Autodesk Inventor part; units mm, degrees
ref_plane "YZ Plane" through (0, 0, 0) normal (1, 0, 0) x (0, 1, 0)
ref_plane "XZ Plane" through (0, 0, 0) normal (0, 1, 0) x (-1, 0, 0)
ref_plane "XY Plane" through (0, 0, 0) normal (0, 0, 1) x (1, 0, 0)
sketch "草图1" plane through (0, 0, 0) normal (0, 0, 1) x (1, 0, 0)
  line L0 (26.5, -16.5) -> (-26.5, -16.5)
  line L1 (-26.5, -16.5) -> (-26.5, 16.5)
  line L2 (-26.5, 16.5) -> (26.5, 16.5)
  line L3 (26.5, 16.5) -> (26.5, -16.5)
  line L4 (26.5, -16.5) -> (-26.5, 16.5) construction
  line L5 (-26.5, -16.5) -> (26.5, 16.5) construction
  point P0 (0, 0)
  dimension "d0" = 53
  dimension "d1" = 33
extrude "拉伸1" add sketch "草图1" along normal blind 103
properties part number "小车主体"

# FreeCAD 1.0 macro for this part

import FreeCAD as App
import Part
import Sketcher
Q = App.Units.Quantity


def add_polygon(sketch, points):
    """Adds a closed chain of lines whose ends are joined by coincident constraints."""
    first, n = sketch.GeometryCount, len(points)
    for a, b in zip(points, points[1:] + points[:1]):
        sketch.addGeometry(Part.LineSegment(App.Vector(*a, 0), App.Vector(*b, 0)), False)
    for i in range(n):
        sketch.addConstraint(Sketcher.Constraint("Coincident", first + i, 2, first + (i + 1) % n, 1))

doc = App.newDocument("Part")
params = doc.addObject("Spreadsheet::Sheet", "Params")
for row, (alias, value) in enumerate([
    ("sketch1_width", "53 mm"),
    ("sketch1_height", "33 mm"),
    ("pad1_length", "103 mm"),
], start=1):
    params.set(f"A{row}", alias)
    params.set(f"B{row}", "=" + value)
    params.setAlias(f"B{row}", alias)

body = doc.addObject("PartDesign::Body", "Body")

sketch1 = body.newObject("Sketcher::SketchObject", "Sketch")
sketch1.AttachmentSupport = (doc.getObject("XY_Plane"), [""])
sketch1.MapMode = "FlatFace"
add_polygon(sketch1, [(-26.5, -16.5), (26.5, -16.5), (26.5, 16.5), (-26.5, 16.5)])
sketch1.addConstraint(Sketcher.Constraint("Horizontal", 0))
sketch1.addConstraint(Sketcher.Constraint("Vertical", 1))
sketch1.addConstraint(Sketcher.Constraint("Horizontal", 2))
sketch1.addConstraint(Sketcher.Constraint("Vertical", 3))
sketch1.addConstraint(Sketcher.Constraint("Symmetric", 0, 2, 2, 2, -1, 1))
sketch1.addConstraint(Sketcher.Constraint("DistanceX", 0, 1, 0, 2, Q("53 mm")))
sketch1.addConstraint(Sketcher.Constraint("DistanceY", 1, 1, 1, 2, Q("33 mm")))
sketch1.setExpression("Constraints[9]", "Params.sketch1_width")
sketch1.setExpression("Constraints[10]", "Params.sketch1_height")
pad1 = body.newObject("PartDesign::Pad", "Pad")
pad1.Profile = sketch1
pad1.setExpression("Length", "Params.pad1_length")

doc.recompute()
